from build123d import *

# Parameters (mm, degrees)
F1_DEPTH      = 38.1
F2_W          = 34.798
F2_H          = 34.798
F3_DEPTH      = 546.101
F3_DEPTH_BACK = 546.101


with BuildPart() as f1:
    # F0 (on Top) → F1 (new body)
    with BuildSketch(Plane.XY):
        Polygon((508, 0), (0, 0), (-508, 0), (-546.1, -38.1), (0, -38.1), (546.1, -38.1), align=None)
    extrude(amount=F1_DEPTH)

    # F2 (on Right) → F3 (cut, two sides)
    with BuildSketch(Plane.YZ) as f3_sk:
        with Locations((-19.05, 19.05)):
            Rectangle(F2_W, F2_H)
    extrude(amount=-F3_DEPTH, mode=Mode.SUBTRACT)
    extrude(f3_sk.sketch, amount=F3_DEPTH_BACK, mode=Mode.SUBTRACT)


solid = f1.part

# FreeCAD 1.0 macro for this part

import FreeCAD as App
import Part
import Sketcher
Q = App.Units.Quantity


def add_polygon(sketch, points):
    """Adds a closed chain of lines whose ends are joined by coincident constraints."""
    first, n = sketch.GeometryCount, len(points)
    for a, b in zip(points, points[1:] + points[:1]):
        sketch.addGeometry(Part.LineSegment(App.Vector(*a, 0), App.Vector(*b, 0)), False)
    for i in range(n):
        sketch.addConstraint(Sketcher.Constraint("Coincident", first + i, 2, first + (i + 1) % n, 1))

doc = App.newDocument("Part")
params = doc.addObject("Spreadsheet::Sheet", "Params")
for row, (alias, value) in enumerate([
    ("sketch1_width", "40 in"),
    ("sketch1_width2", "43 in"),
    ("pad1_length", "1.5 in"),
    ("sketch2_width", "1.37 in"),
], start=1):
    params.set(f"A{row}", alias)
    params.set(f"B{row}", "=" + value)
    params.setAlias(f"B{row}", alias)

body = doc.addObject("PartDesign::Body", "Body")

sketch1 = body.newObject("Sketcher::SketchObject", "Sketch")
sketch1.AttachmentSupport = (doc.getObject("XY_Plane"), [""])
sketch1.MapMode = "FlatFace"
add_polygon(sketch1, [(508, 0), (-508, 0), (-546, -38), (546, -38)])
sketch1.addConstraint(Sketcher.Constraint("Horizontal", 0))
sketch1.addConstraint(Sketcher.Constraint("Horizontal", 2))
sketch1.addConstraint(Sketcher.Constraint("Symmetric", 0, 2, 3, 2, -1, 1))
sketch1.addConstraint(Sketcher.Constraint("Perpendicular", 1, 3))
sketch1.addConstraint(Sketcher.Constraint("Equal", 1, 3))
sketch1.addConstraint(Sketcher.Constraint("DistanceX", 0, 2, 0, 1, Q("40 in")))
sketch1.addConstraint(Sketcher.Constraint("DistanceX", 2, 1, 2, 2, Q("43 in")))
sketch1.setExpression("Constraints[9]", "Params.sketch1_width")
sketch1.setExpression("Constraints[10]", "Params.sketch1_width2")
pad1 = body.newObject("PartDesign::Pad", "Pad")
pad1.Profile = sketch1
pad1.setExpression("Length", "Params.pad1_length")

sketch2 = body.newObject("Sketcher::SketchObject", "Sketch001")
sketch2.AttachmentSupport = (doc.getObject("YZ_Plane"), [""])
sketch2.MapMode = "FlatFace"
add_polygon(sketch2, [(-36, 36), (-36, 2), (-2, 2), (-2, 36)])
sketch2.addConstraint(Sketcher.Constraint("Vertical", 0))
sketch2.addConstraint(Sketcher.Constraint("Horizontal", 1))
sketch2.addConstraint(Sketcher.Constraint("Vertical", 2))
sketch2.addConstraint(Sketcher.Constraint("Horizontal", 3))
sketch2.addConstraint(Sketcher.Constraint("Equal", 3, 0))
sketch2.addConstraint(Sketcher.Constraint("DistanceX", 1, 1, 1, 2, Q("1.37 in")))
sketch2.addConstraint(Sketcher.Constraint("DistanceX", 0, 2, -1, 1, Q("1.435 in")))
sketch2.addConstraint(Sketcher.Constraint("DistanceY", -1, 1, 0, 2, Q("0.065 in")))
sketch2.setExpression("Constraints[9]", "Params.sketch2_width")
pocket1 = body.newObject("PartDesign::Pocket", "Pocket")
pocket1.Profile = sketch2
pocket1.Type = "ThroughAll"
pocket1.Midplane = True

doc.recompute()
